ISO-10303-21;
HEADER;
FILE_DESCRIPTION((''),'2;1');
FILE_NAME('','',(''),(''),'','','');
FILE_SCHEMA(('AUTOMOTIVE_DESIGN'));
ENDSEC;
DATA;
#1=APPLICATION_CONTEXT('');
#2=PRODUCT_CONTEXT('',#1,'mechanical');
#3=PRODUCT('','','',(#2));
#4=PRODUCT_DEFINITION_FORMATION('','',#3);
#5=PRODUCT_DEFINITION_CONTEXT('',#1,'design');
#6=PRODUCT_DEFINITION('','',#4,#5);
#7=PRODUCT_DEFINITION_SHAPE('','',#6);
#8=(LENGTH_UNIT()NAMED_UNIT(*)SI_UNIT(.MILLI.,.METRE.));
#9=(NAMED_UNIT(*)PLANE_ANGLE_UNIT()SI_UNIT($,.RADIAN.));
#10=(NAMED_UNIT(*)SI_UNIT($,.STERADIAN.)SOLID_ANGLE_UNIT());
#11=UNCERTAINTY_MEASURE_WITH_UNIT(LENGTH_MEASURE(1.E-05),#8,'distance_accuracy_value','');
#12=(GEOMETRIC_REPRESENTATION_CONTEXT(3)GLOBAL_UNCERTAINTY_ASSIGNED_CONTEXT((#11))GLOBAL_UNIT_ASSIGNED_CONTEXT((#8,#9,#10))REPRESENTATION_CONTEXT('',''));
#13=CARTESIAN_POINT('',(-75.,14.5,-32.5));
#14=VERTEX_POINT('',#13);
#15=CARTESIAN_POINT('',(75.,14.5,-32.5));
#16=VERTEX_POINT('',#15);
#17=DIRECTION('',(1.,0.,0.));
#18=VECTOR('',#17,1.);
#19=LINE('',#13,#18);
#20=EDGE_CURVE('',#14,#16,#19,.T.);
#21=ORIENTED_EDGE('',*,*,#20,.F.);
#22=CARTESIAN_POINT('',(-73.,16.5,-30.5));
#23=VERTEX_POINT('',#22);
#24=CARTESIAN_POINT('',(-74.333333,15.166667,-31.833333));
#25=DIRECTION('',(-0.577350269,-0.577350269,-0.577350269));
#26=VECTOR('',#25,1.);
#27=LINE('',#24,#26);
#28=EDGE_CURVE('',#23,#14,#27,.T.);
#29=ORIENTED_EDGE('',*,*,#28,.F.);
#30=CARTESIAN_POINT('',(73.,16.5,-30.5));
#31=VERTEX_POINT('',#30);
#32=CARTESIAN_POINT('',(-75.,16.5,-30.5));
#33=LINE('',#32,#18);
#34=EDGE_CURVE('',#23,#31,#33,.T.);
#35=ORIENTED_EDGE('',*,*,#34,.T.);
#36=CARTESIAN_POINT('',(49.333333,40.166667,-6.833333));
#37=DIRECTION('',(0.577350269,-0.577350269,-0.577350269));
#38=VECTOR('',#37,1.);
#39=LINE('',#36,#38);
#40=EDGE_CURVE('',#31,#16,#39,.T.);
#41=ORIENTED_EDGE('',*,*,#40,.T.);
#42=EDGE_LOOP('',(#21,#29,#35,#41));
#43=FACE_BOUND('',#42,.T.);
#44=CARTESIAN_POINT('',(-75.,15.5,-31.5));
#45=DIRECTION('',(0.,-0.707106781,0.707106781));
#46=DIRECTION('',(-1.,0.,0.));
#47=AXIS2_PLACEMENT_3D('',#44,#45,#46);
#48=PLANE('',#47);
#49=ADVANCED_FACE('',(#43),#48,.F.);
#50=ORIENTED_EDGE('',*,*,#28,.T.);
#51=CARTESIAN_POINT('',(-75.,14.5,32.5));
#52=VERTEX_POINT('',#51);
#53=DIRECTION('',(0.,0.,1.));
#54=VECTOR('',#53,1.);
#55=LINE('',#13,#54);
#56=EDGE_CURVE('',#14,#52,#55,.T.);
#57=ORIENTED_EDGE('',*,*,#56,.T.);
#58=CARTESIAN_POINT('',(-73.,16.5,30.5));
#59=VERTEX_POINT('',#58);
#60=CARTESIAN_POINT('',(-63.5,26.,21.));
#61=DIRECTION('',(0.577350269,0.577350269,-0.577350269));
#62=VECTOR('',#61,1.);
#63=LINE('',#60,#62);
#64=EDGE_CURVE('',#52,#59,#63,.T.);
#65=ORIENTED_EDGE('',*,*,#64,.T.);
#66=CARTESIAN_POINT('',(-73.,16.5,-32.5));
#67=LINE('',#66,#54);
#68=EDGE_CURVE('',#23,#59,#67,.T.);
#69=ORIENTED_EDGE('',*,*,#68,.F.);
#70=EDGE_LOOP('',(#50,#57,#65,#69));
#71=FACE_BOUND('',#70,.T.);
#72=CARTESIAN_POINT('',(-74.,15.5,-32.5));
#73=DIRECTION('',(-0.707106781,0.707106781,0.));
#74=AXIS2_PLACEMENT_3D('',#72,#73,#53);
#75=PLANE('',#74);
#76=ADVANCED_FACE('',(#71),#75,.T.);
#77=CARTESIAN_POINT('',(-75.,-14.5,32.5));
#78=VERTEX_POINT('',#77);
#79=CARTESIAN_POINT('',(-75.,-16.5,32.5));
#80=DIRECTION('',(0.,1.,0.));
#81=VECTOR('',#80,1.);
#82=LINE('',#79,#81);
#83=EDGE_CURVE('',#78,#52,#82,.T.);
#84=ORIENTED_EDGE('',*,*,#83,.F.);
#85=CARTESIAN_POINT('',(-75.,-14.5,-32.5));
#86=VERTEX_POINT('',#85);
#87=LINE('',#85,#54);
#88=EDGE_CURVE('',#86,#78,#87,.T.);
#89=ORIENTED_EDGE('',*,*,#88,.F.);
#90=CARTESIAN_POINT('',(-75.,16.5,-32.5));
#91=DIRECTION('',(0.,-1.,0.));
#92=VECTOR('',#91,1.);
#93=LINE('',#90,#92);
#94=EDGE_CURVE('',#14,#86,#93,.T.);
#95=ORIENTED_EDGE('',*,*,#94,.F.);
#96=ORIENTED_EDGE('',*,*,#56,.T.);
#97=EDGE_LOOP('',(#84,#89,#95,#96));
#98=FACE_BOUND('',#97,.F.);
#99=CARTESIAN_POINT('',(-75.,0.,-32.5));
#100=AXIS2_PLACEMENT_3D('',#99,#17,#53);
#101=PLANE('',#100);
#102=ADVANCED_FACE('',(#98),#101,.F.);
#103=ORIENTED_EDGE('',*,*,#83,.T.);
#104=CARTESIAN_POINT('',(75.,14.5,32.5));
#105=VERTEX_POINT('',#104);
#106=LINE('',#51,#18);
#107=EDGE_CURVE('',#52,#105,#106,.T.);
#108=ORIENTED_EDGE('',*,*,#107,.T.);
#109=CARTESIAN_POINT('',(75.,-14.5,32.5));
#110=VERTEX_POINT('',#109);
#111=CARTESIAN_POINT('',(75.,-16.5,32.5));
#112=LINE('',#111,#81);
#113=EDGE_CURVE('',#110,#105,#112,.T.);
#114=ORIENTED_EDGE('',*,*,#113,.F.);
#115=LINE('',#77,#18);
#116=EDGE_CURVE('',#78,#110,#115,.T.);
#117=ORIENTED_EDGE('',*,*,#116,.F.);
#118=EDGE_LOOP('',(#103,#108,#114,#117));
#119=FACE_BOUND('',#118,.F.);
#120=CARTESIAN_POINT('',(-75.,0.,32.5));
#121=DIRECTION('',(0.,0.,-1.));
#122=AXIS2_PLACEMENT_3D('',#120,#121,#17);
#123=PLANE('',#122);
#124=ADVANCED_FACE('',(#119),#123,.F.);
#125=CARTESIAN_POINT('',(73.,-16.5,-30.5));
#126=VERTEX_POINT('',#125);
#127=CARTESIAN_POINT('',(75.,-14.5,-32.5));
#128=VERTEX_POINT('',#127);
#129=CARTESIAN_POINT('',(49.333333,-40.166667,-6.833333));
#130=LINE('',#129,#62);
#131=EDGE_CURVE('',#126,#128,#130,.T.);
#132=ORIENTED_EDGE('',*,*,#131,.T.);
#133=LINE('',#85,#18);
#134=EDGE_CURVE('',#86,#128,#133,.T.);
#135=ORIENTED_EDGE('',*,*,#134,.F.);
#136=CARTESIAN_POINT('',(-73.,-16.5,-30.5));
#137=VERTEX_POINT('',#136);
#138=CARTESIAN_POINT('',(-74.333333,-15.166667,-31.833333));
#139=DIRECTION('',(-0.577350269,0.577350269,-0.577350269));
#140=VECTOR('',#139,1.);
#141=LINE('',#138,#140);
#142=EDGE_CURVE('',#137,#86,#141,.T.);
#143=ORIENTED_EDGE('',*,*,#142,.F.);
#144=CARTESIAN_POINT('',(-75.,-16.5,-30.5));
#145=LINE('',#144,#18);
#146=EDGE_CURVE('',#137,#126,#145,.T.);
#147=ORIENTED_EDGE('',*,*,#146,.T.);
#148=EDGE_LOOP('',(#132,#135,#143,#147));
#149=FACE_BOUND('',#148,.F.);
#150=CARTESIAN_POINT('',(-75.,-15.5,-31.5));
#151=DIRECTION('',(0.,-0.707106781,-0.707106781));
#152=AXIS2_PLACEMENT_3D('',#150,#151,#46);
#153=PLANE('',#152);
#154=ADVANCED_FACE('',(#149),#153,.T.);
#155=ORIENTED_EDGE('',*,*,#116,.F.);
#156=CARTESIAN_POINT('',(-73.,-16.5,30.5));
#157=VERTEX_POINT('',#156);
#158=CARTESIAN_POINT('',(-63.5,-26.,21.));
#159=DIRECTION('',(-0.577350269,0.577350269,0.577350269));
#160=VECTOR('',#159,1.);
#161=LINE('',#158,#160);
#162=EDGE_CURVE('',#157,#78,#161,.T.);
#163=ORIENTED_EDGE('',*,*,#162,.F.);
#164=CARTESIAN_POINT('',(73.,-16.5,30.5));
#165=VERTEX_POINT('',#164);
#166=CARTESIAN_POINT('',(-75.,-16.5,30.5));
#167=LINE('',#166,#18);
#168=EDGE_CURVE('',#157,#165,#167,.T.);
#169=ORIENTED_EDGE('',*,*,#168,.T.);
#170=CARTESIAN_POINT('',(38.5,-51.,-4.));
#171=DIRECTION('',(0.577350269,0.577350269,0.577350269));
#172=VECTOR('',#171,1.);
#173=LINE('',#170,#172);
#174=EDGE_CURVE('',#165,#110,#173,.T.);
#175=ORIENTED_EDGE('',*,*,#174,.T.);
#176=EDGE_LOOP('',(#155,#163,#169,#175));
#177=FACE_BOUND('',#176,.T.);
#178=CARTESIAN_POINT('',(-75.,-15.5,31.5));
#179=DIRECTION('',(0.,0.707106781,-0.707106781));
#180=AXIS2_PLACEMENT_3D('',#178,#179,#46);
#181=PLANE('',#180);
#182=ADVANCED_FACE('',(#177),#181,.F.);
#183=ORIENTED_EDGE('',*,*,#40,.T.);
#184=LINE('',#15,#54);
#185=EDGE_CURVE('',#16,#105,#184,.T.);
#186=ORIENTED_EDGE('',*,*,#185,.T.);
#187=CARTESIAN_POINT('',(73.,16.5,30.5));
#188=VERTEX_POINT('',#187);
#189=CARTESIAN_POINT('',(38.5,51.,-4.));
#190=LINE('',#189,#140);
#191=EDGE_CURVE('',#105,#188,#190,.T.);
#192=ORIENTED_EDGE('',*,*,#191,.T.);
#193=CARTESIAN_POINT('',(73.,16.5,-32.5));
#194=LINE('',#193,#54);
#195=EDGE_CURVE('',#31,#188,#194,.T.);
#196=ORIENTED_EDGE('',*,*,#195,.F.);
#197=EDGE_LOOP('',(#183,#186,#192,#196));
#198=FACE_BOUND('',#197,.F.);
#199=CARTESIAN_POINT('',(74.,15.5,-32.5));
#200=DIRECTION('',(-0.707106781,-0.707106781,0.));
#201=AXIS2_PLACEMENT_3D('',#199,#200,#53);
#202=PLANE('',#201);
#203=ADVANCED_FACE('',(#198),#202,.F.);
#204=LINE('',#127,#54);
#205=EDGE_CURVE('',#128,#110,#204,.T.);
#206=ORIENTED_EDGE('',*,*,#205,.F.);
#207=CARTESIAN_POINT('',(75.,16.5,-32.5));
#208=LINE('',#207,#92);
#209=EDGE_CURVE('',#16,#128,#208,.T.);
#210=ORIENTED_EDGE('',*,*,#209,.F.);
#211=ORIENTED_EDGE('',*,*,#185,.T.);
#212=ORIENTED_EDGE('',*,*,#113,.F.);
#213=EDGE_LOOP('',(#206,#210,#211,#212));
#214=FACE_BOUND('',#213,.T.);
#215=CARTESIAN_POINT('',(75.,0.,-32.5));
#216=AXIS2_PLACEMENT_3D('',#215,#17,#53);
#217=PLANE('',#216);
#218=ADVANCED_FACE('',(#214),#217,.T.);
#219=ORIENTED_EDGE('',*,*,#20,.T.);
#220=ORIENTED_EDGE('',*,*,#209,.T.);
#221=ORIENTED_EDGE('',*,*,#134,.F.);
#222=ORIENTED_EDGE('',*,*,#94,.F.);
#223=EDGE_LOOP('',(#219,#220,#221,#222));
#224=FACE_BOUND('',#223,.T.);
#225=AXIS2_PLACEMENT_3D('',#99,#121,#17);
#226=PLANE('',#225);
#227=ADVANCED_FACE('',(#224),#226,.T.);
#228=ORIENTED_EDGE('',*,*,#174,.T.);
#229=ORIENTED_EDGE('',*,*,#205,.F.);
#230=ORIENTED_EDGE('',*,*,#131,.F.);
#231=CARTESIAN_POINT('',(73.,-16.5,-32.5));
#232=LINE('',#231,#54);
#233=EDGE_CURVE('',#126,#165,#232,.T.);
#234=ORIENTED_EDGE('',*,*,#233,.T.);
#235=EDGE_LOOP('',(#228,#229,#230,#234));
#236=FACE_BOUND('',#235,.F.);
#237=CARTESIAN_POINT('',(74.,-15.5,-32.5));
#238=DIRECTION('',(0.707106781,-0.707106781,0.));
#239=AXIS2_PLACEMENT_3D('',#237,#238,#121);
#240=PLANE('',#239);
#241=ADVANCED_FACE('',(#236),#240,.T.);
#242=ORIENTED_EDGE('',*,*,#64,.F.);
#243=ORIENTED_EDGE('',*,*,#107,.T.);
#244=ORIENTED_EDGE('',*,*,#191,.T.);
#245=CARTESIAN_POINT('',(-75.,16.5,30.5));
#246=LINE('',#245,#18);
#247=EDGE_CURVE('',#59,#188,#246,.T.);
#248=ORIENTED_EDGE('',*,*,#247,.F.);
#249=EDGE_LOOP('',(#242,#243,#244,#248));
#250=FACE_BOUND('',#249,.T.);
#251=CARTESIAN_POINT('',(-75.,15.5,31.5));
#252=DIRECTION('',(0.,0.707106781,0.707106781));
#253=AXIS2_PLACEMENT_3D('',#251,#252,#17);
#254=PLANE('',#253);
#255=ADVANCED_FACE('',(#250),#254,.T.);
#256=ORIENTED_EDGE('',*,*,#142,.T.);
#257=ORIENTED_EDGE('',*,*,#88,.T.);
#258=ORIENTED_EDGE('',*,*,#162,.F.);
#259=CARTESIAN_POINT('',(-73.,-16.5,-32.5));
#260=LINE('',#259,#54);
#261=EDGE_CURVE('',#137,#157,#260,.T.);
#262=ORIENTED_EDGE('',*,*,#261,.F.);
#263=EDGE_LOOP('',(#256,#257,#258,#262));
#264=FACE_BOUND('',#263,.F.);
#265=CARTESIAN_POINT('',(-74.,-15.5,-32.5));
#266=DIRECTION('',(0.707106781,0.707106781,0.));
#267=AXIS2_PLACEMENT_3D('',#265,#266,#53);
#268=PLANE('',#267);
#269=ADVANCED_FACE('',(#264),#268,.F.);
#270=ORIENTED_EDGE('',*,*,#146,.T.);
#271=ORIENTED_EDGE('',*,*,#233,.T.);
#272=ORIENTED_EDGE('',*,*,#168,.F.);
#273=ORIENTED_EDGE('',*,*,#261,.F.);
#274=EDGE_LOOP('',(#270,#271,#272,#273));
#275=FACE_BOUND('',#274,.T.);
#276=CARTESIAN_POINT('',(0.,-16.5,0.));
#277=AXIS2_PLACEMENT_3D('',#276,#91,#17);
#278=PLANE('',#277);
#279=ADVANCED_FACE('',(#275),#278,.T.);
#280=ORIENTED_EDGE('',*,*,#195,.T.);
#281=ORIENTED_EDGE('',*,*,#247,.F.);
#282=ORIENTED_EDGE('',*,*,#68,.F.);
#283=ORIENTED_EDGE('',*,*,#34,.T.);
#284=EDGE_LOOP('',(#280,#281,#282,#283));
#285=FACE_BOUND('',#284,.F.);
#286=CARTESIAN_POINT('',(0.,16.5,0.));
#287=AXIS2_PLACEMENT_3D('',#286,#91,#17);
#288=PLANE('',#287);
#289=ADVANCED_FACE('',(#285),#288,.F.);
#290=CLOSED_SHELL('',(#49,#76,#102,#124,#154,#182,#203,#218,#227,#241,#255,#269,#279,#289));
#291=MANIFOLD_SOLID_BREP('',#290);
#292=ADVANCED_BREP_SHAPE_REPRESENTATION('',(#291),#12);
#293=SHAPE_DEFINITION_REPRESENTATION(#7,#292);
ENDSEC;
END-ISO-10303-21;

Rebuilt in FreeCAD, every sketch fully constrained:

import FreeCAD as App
import Part
import Sketcher

V = App.Vector
Q = App.Units.Quantity


def edges_at(feature, points):
    """Names of the edges that pass closest to the given points."""
    edges = feature.Shape.Edges
    near = lambda p: min(range(len(edges)), key=lambda i: edges[i].distToShape(Part.Vertex(*p))[0])
    return sorted({f"Edge{near(p) + 1}" for p in points})


def add_polygon(sketch, points):
    """Adds a closed chain of lines whose ends are joined by coincident constraints."""
    first, n = sketch.GeometryCount, len(points)
    for a, b in zip(points, points[1:] + points[:1]):
        sketch.addGeometry(Part.LineSegment(App.Vector(*a, 0), App.Vector(*b, 0)), False)
    for i in range(n):
        sketch.addConstraint(Sketcher.Constraint("Coincident", first + i, 2, first + (i + 1) % n, 1))

doc = App.newDocument("Part")
body = doc.addObject("PartDesign::Body", "Body")

sketch1 = doc.addObject("Sketcher::SketchObject", "Sketch")
body.addObject(sketch1)
sketch1.AttachmentSupport = (doc.XZ_Plane, [""])
sketch1.MapMode = "FlatFace"
add_polygon(sketch1, [(-75, 32), (-75, -32), (75, -32), (75, 32)])
sketch1.addConstraint(Sketcher.Constraint("Vertical", 0))
sketch1.addConstraint(Sketcher.Constraint("Horizontal", 1))
sketch1.addConstraint(Sketcher.Constraint("Vertical", 2))
sketch1.addConstraint(Sketcher.Constraint("Horizontal", 3))
sketch1.addConstraint(Sketcher.Constraint("Symmetric", 0, 2, 2, 2, -1, 1))
sketch1.addConstraint(Sketcher.Constraint("DistanceX", 1, 1, 1, 2, Q("150 mm")))
sketch1.addConstraint(Sketcher.Constraint("DistanceY", 0, 2, 0, 1, Q("65 mm")))
pad1 = doc.addObject("PartDesign::Pad", "Pad")
body.addObject(pad1)
pad1.Profile = sketch1
pad1.Length = 33
pad1.Midplane = True
doc.recompute()

chamfer = doc.addObject("PartDesign::Chamfer", "Chamfer")
body.addObject(chamfer)
chamfer.Base = (pad1, edges_at(pad1, [
    (0, -16.5, -32.5),
    (75, -16.5, 0),
    (0, -16.5, 32.5),
    (-75, -16.5, 0),
    (0, 16.5, -32.5),
    (75, 16.5, 0),
    (0, 16.5, 32.5),
    (-75, 16.5, 0),
]))
chamfer.Size = 2

doc.recompute()
